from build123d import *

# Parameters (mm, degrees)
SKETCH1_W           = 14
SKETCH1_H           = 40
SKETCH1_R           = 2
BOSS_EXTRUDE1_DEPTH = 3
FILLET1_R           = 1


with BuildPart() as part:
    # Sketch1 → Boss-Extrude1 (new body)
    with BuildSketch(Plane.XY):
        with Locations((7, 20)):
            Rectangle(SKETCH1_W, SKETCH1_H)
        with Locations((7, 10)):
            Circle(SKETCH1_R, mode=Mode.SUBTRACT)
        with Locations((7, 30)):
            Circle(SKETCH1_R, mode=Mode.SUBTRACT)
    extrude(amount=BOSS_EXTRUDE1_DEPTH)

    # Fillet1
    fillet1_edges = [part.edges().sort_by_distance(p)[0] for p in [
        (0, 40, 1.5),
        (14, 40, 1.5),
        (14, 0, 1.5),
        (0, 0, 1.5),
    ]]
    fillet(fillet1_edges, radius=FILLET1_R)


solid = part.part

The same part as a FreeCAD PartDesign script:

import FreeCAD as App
import Part
import Sketcher
from FreeCAD import Vector


def edges_at(feature, points):
    """Names of the edges that pass closest to the given points."""
    edges = feature.Shape.Edges
    near = lambda p: min(range(len(edges)), key=lambda i: edges[i].distToShape(Part.Vertex(*p))[0])
    return sorted({f"Edge{near(p) + 1}" for p in points})


def add_polygon(sketch, points):
    """Adds a closed chain of lines whose ends are joined by coincident constraints."""
    first, n = sketch.GeometryCount, len(points)
    for a, b in zip(points, points[1:] + points[:1]):
        sketch.addGeometry(Part.LineSegment(App.Vector(*a, 0), App.Vector(*b, 0)), False)
    for i in range(n):
        sketch.addConstraint(Sketcher.Constraint("Coincident", first + i, 2, first + (i + 1) % n, 1))

doc = App.newDocument("Part")
body = doc.addObject("PartDesign::Body", "Body")

# Sketch on XY plane
sketch1 = body.newObject("Sketcher::SketchObject", "Sketch")
sketch1.AttachmentSupport = (doc.getObject("XY_Plane"), [""])
sketch1.MapMode = "FlatFace"
add_polygon(sketch1, [(0, 40), (0, 0), (14, 0), (14, 40)])  # lines 0-3
sketch1.addGeometry(Part.Circle(Vector(7, 10, 0), Vector(0, 0, 1), 2), False)  # 4
sketch1.addGeometry(Part.Circle(Vector(7, 30, 0), Vector(0, 0, 1), 2), False)  # 5
sketch1.addConstraint(Sketcher.Constraint("Vertical", 0))
sketch1.addConstraint(Sketcher.Constraint("Horizontal", 1))
sketch1.addConstraint(Sketcher.Constraint("Vertical", 2))
sketch1.addConstraint(Sketcher.Constraint("Horizontal", 3))
sketch1.addConstraint(Sketcher.Constraint("Coincident", 0, 2, -1, 1))
sketch1.addConstraint(Sketcher.Constraint("Equal", 4, 5))
sketch1.addConstraint(Sketcher.Constraint("Vertical", 4, 3, 5, 3))
sketch1.addConstraint(Sketcher.Constraint("Diameter", 4, 4.0))
sketch1.addConstraint(Sketcher.Constraint("DistanceX", 1, 1, 1, 2, 14.0))
sketch1.addConstraint(Sketcher.Constraint("DistanceY", 0, 2, 0, 1, 40.0))
sketch1.addConstraint(Sketcher.Constraint("DistanceX", -1, 1, 4, 3, 7.0))
sketch1.addConstraint(Sketcher.Constraint("DistanceY", -1, 1, 4, 3, 10.0))
sketch1.addConstraint(Sketcher.Constraint("DistanceY", -1, 1, 5, 3, 30.0))
pad1 = body.newObject("PartDesign::Pad", "Pad")
pad1.Profile = sketch1
pad1.Length = 3
doc.recompute()

fillet = body.newObject("PartDesign::Fillet", "Fillet")
fillet.Base = (pad1, edges_at(pad1, [
    (0, 40, 1.5),
    (14, 40, 1.5),
    (14, 0, 1.5),
    (0, 0, 1.5),
]))
fillet.Radius = 1

doc.recompute()
